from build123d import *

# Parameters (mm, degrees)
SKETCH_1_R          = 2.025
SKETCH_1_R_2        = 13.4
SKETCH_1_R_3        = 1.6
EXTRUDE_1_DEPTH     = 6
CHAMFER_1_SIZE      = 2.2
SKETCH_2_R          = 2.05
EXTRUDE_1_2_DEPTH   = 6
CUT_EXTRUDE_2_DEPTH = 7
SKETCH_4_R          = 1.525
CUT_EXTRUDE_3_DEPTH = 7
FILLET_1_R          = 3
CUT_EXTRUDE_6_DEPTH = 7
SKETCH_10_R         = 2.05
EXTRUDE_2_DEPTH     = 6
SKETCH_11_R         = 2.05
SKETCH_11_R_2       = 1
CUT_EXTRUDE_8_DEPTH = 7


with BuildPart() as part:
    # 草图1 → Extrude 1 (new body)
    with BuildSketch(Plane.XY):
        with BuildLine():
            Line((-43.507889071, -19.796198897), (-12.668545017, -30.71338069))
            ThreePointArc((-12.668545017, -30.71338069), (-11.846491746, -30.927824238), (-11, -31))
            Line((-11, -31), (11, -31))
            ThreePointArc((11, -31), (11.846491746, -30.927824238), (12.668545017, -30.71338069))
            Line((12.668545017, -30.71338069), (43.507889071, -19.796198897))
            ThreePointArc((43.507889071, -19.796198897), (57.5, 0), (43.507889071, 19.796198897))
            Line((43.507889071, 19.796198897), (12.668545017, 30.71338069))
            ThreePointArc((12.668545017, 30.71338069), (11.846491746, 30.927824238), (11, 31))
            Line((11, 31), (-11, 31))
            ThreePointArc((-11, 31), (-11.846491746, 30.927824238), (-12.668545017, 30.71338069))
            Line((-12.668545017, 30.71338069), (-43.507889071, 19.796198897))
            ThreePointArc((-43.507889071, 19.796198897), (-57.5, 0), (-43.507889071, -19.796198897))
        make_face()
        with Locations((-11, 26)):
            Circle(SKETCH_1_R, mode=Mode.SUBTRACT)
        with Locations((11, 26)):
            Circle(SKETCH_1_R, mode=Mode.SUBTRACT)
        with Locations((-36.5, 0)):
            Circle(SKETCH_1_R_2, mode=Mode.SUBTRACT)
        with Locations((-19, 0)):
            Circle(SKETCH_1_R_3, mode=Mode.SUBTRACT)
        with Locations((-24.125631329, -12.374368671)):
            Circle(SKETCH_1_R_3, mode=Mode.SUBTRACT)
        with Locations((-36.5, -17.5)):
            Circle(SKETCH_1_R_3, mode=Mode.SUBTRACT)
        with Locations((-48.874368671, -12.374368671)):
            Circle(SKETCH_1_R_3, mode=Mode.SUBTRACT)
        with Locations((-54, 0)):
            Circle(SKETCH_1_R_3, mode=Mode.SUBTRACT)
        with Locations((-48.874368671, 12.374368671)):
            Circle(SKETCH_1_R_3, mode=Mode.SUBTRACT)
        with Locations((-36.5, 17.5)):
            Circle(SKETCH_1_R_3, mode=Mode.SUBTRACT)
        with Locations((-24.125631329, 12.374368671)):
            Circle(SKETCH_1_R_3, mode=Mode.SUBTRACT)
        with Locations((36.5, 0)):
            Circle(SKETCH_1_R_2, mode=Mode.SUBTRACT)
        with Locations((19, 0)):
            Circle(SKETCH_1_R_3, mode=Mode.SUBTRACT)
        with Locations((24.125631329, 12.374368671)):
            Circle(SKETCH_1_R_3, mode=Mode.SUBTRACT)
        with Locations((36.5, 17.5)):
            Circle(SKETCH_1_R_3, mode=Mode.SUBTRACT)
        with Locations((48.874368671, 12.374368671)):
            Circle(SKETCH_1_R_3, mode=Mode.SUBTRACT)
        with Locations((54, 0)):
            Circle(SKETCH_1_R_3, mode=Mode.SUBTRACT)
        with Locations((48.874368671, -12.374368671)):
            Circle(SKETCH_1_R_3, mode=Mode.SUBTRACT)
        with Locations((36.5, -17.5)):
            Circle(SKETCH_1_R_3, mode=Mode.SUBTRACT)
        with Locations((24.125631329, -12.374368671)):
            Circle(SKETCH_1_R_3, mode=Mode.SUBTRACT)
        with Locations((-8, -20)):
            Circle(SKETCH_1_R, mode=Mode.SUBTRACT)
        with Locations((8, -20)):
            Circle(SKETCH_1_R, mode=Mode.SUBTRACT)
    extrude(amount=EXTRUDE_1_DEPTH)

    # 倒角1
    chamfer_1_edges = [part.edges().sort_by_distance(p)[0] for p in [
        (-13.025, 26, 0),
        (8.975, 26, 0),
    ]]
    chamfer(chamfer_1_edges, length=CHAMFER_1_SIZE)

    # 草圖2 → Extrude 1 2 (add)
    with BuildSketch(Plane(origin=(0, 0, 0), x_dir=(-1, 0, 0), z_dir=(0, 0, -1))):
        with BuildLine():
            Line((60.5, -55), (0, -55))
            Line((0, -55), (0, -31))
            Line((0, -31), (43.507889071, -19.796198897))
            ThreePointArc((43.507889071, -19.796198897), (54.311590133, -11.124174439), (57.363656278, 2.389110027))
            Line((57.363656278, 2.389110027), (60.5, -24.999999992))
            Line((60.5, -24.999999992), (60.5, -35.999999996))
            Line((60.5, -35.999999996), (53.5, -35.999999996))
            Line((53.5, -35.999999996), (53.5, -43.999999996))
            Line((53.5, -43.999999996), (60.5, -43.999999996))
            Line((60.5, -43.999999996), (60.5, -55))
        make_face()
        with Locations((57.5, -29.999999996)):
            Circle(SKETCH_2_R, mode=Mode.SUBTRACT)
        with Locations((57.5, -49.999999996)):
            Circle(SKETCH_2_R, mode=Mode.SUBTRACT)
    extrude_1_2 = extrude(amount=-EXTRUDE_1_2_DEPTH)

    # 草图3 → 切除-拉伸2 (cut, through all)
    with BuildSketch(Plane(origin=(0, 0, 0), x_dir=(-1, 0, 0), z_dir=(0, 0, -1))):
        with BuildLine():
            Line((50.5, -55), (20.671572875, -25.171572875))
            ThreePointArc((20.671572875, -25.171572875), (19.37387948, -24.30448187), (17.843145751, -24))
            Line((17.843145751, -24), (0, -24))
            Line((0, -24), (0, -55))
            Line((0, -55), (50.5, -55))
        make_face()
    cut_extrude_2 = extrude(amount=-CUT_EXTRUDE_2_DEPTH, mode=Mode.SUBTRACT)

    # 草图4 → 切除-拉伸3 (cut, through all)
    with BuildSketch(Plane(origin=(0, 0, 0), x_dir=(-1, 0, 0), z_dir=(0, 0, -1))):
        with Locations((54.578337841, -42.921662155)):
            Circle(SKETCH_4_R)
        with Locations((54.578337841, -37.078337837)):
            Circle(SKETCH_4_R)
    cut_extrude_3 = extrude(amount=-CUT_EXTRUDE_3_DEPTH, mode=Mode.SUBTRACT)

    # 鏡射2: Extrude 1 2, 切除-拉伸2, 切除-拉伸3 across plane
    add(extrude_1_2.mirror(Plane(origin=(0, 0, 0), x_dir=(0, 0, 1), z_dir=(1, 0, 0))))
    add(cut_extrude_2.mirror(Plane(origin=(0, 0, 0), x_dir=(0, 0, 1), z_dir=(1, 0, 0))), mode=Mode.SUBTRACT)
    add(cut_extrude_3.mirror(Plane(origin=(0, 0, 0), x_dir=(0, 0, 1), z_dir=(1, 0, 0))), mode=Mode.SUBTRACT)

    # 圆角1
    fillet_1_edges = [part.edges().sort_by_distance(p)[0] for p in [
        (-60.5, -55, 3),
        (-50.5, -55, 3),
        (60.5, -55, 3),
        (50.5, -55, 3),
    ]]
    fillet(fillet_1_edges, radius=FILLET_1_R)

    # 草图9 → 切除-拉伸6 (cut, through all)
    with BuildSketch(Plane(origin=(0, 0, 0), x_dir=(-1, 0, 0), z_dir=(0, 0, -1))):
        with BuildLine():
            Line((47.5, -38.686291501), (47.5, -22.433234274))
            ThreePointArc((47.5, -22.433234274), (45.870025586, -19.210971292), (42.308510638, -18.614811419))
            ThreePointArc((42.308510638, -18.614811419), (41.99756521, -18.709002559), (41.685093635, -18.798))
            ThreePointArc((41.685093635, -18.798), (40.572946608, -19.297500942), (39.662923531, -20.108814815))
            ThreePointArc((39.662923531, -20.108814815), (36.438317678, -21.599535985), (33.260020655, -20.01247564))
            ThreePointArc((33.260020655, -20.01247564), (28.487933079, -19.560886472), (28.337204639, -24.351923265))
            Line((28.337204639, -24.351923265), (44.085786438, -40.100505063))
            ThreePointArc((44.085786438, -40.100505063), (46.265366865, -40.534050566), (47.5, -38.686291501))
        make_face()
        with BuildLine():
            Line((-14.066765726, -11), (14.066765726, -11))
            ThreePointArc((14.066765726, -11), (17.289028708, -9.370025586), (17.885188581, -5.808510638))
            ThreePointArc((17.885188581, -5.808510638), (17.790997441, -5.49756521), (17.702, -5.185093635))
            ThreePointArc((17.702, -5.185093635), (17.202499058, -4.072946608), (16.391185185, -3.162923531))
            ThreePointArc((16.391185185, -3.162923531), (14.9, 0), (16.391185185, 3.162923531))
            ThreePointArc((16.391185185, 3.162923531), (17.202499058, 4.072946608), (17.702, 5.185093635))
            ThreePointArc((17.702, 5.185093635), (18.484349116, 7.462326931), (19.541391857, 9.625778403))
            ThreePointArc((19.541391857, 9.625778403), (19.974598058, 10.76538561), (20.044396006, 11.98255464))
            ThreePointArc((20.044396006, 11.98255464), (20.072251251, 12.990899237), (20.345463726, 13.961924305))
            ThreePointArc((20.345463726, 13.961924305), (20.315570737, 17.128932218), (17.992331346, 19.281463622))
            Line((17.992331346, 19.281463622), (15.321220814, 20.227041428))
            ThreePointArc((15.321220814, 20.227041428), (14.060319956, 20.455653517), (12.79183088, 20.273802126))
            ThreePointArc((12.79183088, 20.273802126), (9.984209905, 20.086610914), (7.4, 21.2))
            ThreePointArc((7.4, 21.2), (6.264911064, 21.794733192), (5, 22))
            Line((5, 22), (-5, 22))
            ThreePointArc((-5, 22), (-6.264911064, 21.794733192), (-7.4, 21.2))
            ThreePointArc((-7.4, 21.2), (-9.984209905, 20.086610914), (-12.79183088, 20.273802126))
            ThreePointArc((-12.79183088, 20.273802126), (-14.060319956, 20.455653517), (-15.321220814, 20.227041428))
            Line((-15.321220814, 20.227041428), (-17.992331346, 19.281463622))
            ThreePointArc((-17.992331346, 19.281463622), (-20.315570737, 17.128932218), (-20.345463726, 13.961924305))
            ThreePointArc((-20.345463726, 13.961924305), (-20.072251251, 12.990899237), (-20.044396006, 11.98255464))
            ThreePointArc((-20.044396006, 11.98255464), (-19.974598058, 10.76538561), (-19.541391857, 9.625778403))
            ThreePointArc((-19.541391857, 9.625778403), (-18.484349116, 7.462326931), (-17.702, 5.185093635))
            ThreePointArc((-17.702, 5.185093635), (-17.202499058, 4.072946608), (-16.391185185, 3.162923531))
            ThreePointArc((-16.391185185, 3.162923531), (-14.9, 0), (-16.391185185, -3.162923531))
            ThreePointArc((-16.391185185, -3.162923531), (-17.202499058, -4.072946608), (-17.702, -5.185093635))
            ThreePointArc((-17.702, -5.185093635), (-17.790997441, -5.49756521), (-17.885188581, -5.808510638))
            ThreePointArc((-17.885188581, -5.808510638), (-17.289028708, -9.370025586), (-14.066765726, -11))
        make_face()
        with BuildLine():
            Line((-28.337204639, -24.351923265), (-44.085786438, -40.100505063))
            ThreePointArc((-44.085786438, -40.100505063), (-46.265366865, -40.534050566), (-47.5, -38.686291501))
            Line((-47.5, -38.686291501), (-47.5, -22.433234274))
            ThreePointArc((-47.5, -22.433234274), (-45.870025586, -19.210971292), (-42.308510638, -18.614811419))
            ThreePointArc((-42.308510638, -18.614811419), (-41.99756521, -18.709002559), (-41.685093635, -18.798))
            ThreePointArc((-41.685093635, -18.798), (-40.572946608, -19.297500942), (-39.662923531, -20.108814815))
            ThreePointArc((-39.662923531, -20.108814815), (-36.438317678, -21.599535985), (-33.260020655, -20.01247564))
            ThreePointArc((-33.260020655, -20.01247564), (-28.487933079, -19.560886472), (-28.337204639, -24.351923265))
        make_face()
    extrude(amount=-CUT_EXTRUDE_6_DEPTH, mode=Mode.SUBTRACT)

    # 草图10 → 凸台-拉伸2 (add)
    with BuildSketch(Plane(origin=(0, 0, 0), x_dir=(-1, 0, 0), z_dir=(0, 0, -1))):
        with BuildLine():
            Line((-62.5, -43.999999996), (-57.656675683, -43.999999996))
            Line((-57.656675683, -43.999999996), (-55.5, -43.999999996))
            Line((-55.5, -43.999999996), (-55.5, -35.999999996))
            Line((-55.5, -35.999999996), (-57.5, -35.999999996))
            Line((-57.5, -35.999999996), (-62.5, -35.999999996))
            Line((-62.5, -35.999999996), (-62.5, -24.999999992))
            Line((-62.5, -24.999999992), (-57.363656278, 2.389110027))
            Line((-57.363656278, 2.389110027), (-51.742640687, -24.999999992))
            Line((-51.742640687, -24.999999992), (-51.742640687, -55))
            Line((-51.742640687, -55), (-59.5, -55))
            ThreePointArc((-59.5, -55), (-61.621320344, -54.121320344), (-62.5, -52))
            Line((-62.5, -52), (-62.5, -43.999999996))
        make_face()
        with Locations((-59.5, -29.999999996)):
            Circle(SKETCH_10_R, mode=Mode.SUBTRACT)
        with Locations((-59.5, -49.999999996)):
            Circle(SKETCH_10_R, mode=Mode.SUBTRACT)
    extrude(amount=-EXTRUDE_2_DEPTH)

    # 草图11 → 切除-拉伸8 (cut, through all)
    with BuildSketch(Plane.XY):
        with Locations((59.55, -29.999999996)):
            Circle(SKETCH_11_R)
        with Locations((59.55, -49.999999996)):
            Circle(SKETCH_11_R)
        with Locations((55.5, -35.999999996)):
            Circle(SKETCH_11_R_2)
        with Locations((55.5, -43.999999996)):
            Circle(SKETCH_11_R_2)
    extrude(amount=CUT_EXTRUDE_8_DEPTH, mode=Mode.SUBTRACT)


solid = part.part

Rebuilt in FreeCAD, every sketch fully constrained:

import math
import FreeCAD as App
import Part
import Sketcher
from FreeCAD import Vector
Q = App.Units.Quantity


def edges_at(feature, points):
    """Names of the edges that pass closest to the given points."""
    edges = feature.Shape.Edges
    near = lambda p: min(range(len(edges)), key=lambda i: edges[i].distToShape(Part.Vertex(*p))[0])
    return sorted({f"Edge{near(p) + 1}" for p in points})

doc = App.newDocument("Part")
body = doc.addObject("PartDesign::Body", "Body")

# Sketch on XY plane
sketch1 = body.newObject("Sketcher::SketchObject", "Sketch")
sketch1.AttachmentSupport = (doc.getObject("XY_Plane"), [""])
sketch1.MapMode = "FlatFace"
sketch1.addGeometry([
    Part.LineSegment(Vector(-43.507889, -19.796199, 0), Vector(-12.668545, -30.713381, 0)),  # 0
    Part.ArcOfCircle(Part.Circle(Vector(-11, -26, 0), Vector(0, 0, 1), 5), math.radians(-109.494052), math.radians(-90)),  # 1
    Part.LineSegment(Vector(-11, -31, 0), Vector(11, -31, 0)),  # 2
    Part.ArcOfCircle(Part.Circle(Vector(11, -26, 0), Vector(0, 0, 1), 5), math.radians(-90), math.radians(-70.505948)),  # 3
    Part.LineSegment(Vector(12.668545, -30.713381, 0), Vector(43.507889, -19.796199, 0)),  # 4
    Part.ArcOfCircle(Part.Circle(Vector(36.5, 0, 0), Vector(0, 0, 1), 21), math.radians(-70.505948), math.radians(70.505948)),  # 5
    Part.LineSegment(Vector(43.507889, 19.796199, 0), Vector(12.668545, 30.713381, 0)),  # 6
    Part.ArcOfCircle(Part.Circle(Vector(11, 26, 0), Vector(0, 0, 1), 5), math.radians(70.505948), math.radians(90)),  # 7
    Part.LineSegment(Vector(11, 31, 0), Vector(-11, 31, 0)),  # 8
    Part.ArcOfCircle(Part.Circle(Vector(-11, 26, 0), Vector(0, 0, 1), 5), math.radians(90), math.radians(109.494052)),  # 9
    Part.LineSegment(Vector(-12.668545, 30.713381, 0), Vector(-43.507889, 19.796199, 0)),  # 10
    Part.ArcOfCircle(Part.Circle(Vector(-36.5, 0, 0), Vector(0, 0, 1), 21), math.radians(109.494052), math.radians(250.505948)),  # 11
    Part.Circle(Vector(-36.5, -17.5, 0), Vector(0, 0, 1), 1.6),  # 12
    Part.Circle(Vector(-48.874369, -12.374369, 0), Vector(0, 0, 1), 1.6),  # 13
    Part.Circle(Vector(-8, -20, 0), Vector(0, 0, 1), 2.025),  # 14
    Part.Circle(Vector(-24.125631, -12.374369, 0), Vector(0, 0, 1), 1.6),  # 15
    Part.Circle(Vector(-54, 0, 0), Vector(0, 0, 1), 1.6),  # 16
    Part.Circle(Vector(-36.5, 0, 0), Vector(0, 0, 1), 13.4),  # 17
    Part.Circle(Vector(-19, 0, 0), Vector(0, 0, 1), 1.6),  # 18
    Part.Circle(Vector(8, -20, 0), Vector(0, 0, 1), 2.025),  # 19
    Part.Circle(Vector(24.125631, -12.374369, 0), Vector(0, 0, 1), 1.6),  # 20
    Part.Circle(Vector(36.5, -17.5, 0), Vector(0, 0, 1), 1.6),  # 21
    Part.Circle(Vector(48.874369, -12.374369, 0), Vector(0, 0, 1), 1.6),  # 22
    Part.Circle(Vector(19, 0, 0), Vector(0, 0, 1), 1.6),  # 23
    Part.Circle(Vector(36.5, 0, 0), Vector(0, 0, 1), 13.4),  # 24
    Part.Circle(Vector(54, 0, 0), Vector(0, 0, 1), 1.6),  # 25
    Part.Circle(Vector(-48.874369, 12.374369, 0), Vector(0, 0, 1), 1.6),  # 26
    Part.Circle(Vector(-24.125631, 12.374369, 0), Vector(0, 0, 1), 1.6),  # 27
    Part.Circle(Vector(-36.5, 17.5, 0), Vector(0, 0, 1), 1.6),  # 28
    Part.Circle(Vector(-11, 26, 0), Vector(0, 0, 1), 2.025),  # 29
    Part.Circle(Vector(24.125631, 12.374369, 0), Vector(0, 0, 1), 1.6),  # 30
    Part.Circle(Vector(48.874369, 12.374369, 0), Vector(0, 0, 1), 1.6),  # 31
    Part.Circle(Vector(11, 26, 0), Vector(0, 0, 1), 2.025),  # 32
    Part.Circle(Vector(36.5, 17.5, 0), Vector(0, 0, 1), 1.6),  # 33
], False)
sketch1.addConstraint([
    Sketcher.Constraint("Tangent", 0, 2, 1, 1),
    Sketcher.Constraint("Tangent", 1, 2, 2, 1),
    Sketcher.Constraint("Tangent", 2, 2, 3, 1),
    Sketcher.Constraint("Tangent", 3, 2, 4, 1),
    Sketcher.Constraint("Tangent", 4, 2, 5, 1),
    Sketcher.Constraint("Tangent", 5, 2, 6, 1),
    Sketcher.Constraint("Tangent", 6, 2, 7, 1),
    Sketcher.Constraint("Tangent", 7, 2, 8, 1),
    Sketcher.Constraint("Tangent", 8, 2, 9, 1),
    Sketcher.Constraint("Tangent", 9, 2, 10, 1),
    Sketcher.Constraint("Tangent", 10, 2, 11, 1),
    Sketcher.Constraint("Tangent", 11, 2, 0, 1),
    Sketcher.Constraint("Horizontal", 2),
    Sketcher.Constraint("Horizontal", 8),
    Sketcher.Constraint("Coincident", 17, 3, 11, 3),
    Sketcher.Constraint("Coincident", 24, 3, 5, 3),
    Sketcher.Constraint("Coincident", 29, 3, 9, 3),
    Sketcher.Constraint("Coincident", 32, 3, 7, 3),
    Sketcher.Constraint("Equal", 1, 3),
    Sketcher.Constraint("Equal", 3, 7),
    Sketcher.Constraint("Equal", 7, 9),
    Sketcher.Constraint("Equal", 5, 11),
    Sketcher.Constraint("Equal", 12, 13),
    Sketcher.Constraint("Equal", 13, 15),
    Sketcher.Constraint("Equal", 15, 16),
    Sketcher.Constraint("Equal", 16, 18),
    Sketcher.Constraint("Equal", 14, 19),
    Sketcher.Constraint("Equal", 18, 20),
    Sketcher.Constraint("Equal", 20, 21),
    Sketcher.Constraint("Equal", 21, 22),
    Sketcher.Constraint("Equal", 22, 23),
    Sketcher.Constraint("Equal", 17, 24),
    Sketcher.Constraint("Equal", 23, 25),
    Sketcher.Constraint("Equal", 25, 26),
    Sketcher.Constraint("Equal", 26, 27),
    Sketcher.Constraint("Equal", 27, 28),
    Sketcher.Constraint("Equal", 19, 29),
    Sketcher.Constraint("Equal", 28, 30),
    Sketcher.Constraint("Equal", 30, 31),
    Sketcher.Constraint("Equal", 29, 32),
    Sketcher.Constraint("Equal", 31, 33),
    Sketcher.Constraint("Symmetric", 1, 3, 7, 3, -1, 1),
    Sketcher.Constraint("Symmetric", 5, 3, 11, 3, -1, 1),
    Sketcher.Constraint("Symmetric", 18, 3, 23, 3, -1, 1),
    Sketcher.Constraint("Symmetric", 16, 3, 25, 3, -1, 1),
    Sketcher.Constraint("Symmetric", 22, 3, 26, 3, -1, 1),
    Sketcher.Constraint("Symmetric", 20, 3, 27, 3, -1, 1),
    Sketcher.Constraint("Symmetric", 21, 3, 28, 3, -1, 1),
    Sketcher.Constraint("Symmetric", 15, 3, 30, 3, -1, 1),
    Sketcher.Constraint("Symmetric", 13, 3, 31, 3, -1, 1),
    Sketcher.Constraint("Symmetric", 12, 3, 33, 3, -1, 1),
    Sketcher.Constraint("Symmetric", 14, 3, 19, 3, -2),
    Sketcher.Constraint("Symmetric", 15, 3, 20, 3, -2),
    Sketcher.Constraint("Symmetric", 12, 3, 21, 3, -2),
    Sketcher.Constraint("Symmetric", 13, 3, 22, 3, -2),
    Sketcher.Constraint("Symmetric", 0, 2, 3, 2, -2),
    Sketcher.Constraint("PointOnObject", 16, 3, -1),
    Sketcher.Constraint("PointOnObject", 18, 3, -1),
    Sketcher.Constraint("Parallel", 4, 10),
    Sketcher.Constraint("Horizontal", 13, 3, 15, 3),
    Sketcher.Constraint("Vertical", 11, 3, 12, 3),
    Sketcher.Constraint("Radius", 1, 5.0),
    Sketcher.Constraint("Radius", 5, 21.0),
    Sketcher.Constraint("Diameter", 12, 3.2),
    Sketcher.Constraint("Diameter", 17, 26.8),
    Sketcher.Constraint("Diameter", 14, 4.05),
    Sketcher.Constraint("DistanceX", 2, 1, 2, 2, 22.0),
    Sketcher.Constraint("DistanceY", 1, 3, -1, 1, 26.0),
    Sketcher.Constraint("DistanceX", 14, 3, -1, 1, 8.0),
    Sketcher.Constraint("DistanceY", 14, 3, -1, 1, 20.0),
    Sketcher.Constraint("DistanceX", 16, 3, -1, 1, 54.0),
    Sketcher.Constraint("DistanceX", 18, 3, -1, 1, 19.0),
    Sketcher.Constraint("DistanceX", 11, 3, 5, 3, 73.0),
    Sketcher.Constraint("DistanceY", 12, 3, -1, 1, 17.5),
    Sketcher.Constraint("DistanceX", 13, 3, -1, 1, 48.874369),
    Sketcher.Constraint("DistanceY", 13, 3, -1, 1, 12.374369),
    Sketcher.Constraint("DistanceX", 15, 3, -1, 1, 24.125631),
])
pad1 = body.newObject("PartDesign::Pad", "Pad")
pad1.Profile = sketch1
pad1.Length = 6
doc.recompute()

chamfer = body.newObject("PartDesign::Chamfer", "Chamfer")
chamfer.Base = (pad1, edges_at(pad1, [(-13.025, 26, 0), (8.975, 26, 0)]))
chamfer.Size = 2.2

# Sketch on XY plane
sketch2 = body.newObject("Sketcher::SketchObject", "Sketch001")
sketch2.AttachmentSupport = (doc.getObject("XY_Plane"), [""])
sketch2.MapMode = "FlatFace"
sketch2.addGeometry([
    Part.LineSegment(Vector(0, -55, 0), Vector(-60.5, -55, 0)),  # 0
    Part.LineSegment(Vector(-60.5, -55, 0), Vector(-60.5, -44, 0)),  # 1
    Part.LineSegment(Vector(-60.5, -44, 0), Vector(-53.5, -44, 0)),  # 2
    Part.LineSegment(Vector(-53.5, -44, 0), Vector(-53.5, -36, 0)),  # 3
    Part.LineSegment(Vector(-53.5, -36, 0), Vector(-60.5, -36, 0)),  # 4
    Part.LineSegment(Vector(-60.5, -36, 0), Vector(-60.5, -25, 0)),  # 5
    Part.LineSegment(Vector(-60.5, -25, 0), Vector(-57.363656, 2.38911, 0)),  # 6
    Part.ArcOfCircle(Part.Circle(Vector(-36.5, 0, 0), Vector(0, 0, 1), 21), math.radians(173.467479), math.radians(250.505948)),  # 7
    Part.LineSegment(Vector(-43.507889, -19.796199, 0), Vector(0, -31, 0)),  # 8
    Part.LineSegment(Vector(0, -31, 0), Vector(0, -55, 0)),  # 9
    Part.Circle(Vector(-57.5, -50, 0), Vector(0, 0, 1), 2.05),  # 10
    Part.Circle(Vector(-57.5, -30, 0), Vector(0, 0, 1), 2.05),  # 11
], False)
sketch2.addConstraint([
    Sketcher.Constraint("Coincident", 0, 2, 1, 1),
    Sketcher.Constraint("Coincident", 1, 2, 2, 1),
    Sketcher.Constraint("Coincident", 2, 2, 3, 1),
    Sketcher.Constraint("Coincident", 3, 2, 4, 1),
    Sketcher.Constraint("Coincident", 4, 2, 5, 1),
    Sketcher.Constraint("Coincident", 5, 2, 6, 1),
    Sketcher.Constraint("Tangent", 6, 2, 7, 1),
    Sketcher.Constraint("Coincident", 7, 2, 8, 1),
    Sketcher.Constraint("Coincident", 8, 2, 9, 1),
    Sketcher.Constraint("Coincident", 9, 2, 0, 1),
    Sketcher.Constraint("Horizontal", 0),
    Sketcher.Constraint("Vertical", 1),
    Sketcher.Constraint("Horizontal", 2),
    Sketcher.Constraint("Vertical", 3),
    Sketcher.Constraint("Horizontal", 4),
    Sketcher.Constraint("Vertical", 5),
    Sketcher.Constraint("Vertical", 9),
    Sketcher.Constraint("Equal", 10, 11),
    Sketcher.Constraint("PointOnObject", 7, 3, -1),
    Sketcher.Constraint("PointOnObject", 8, 2, -2),
    Sketcher.Constraint("Vertical", 10, 3, 11, 3),
    Sketcher.Constraint("Vertical", 1, 2, 4, 2),
    Sketcher.Constraint("Equal", 1, 5),
    Sketcher.Constraint("Radius", 7, 21.0),
    Sketcher.Constraint("Diameter", 10, 4.1),
    Sketcher.Constraint("DistanceX", 2, 1, 2, 2, 7.0),
    Sketcher.Constraint("DistanceY", 1, 1, 1, 2, 11.0),
    Sketcher.Constraint("DistanceY", 3, 1, 3, 2, 8.0),
    Sketcher.Constraint("DistanceY", 9, 2, 9, 1, 24.0),
    Sketcher.Constraint("DistanceX", 0, 2, 0, 1, 60.5),
    Sketcher.Constraint("DistanceY", 10, 3, -1, 1, 50.0),
    Sketcher.Constraint("DistanceY", 11, 3, -1, 1, 30.0),
    Sketcher.Constraint("DistanceY", 0, 2, -1, 1, 55.0),
    Sketcher.Constraint("DistanceX", 10, 3, 7, 3, 21.0),
    Sketcher.Constraint("DistanceX", 0, 2, 10, 3, 3.0),
    Sketcher.Constraint("DistanceY", 7, 2, -1, 1, 19.796199),
])
pad2 = body.newObject("PartDesign::Pad", "Pad001")
pad2.Profile = sketch2
pad2.Length = 6

# Sketch on XY plane
sketch3 = body.newObject("Sketcher::SketchObject", "Sketch002")
sketch3.AttachmentSupport = (doc.getObject("XY_Plane"), [""])
sketch3.MapMode = "FlatFace"
sketch3.addGeometry([
    Part.LineSegment(Vector(-50.5, -55, 0), Vector(-20.671573, -25.171573, 0)),  # 0
    Part.ArcOfCircle(Part.Circle(Vector(-17.843146, -28, 0), Vector(0, 0, 1), 4), math.radians(90), math.radians(135)),  # 1
    Part.LineSegment(Vector(-17.843146, -24, 0), Vector(0, -24, 0)),  # 2
    Part.LineSegment(Vector(0, -24, 0), Vector(0, -55, 0)),  # 3
    Part.LineSegment(Vector(0, -55, 0), Vector(-50.5, -55, 0)),  # 4
], False)
sketch3.addConstraint([
    Sketcher.Constraint("Tangent", 0, 2, 1, 2),
    Sketcher.Constraint("Tangent", 1, 1, 2, 1),
    Sketcher.Constraint("Coincident", 2, 2, 3, 1),
    Sketcher.Constraint("Coincident", 3, 2, 4, 1),
    Sketcher.Constraint("Coincident", 4, 2, 0, 1),
    Sketcher.Constraint("Horizontal", 2),
    Sketcher.Constraint("Vertical", 3),
    Sketcher.Constraint("Horizontal", 4),
    Sketcher.Constraint("PointOnObject", 2, 2, -2),
    Sketcher.Constraint("Radius", 1, 4.0),
    Sketcher.Constraint("DistanceY", 3, 2, 3, 1, 31.0),
    Sketcher.Constraint("Angle", 0, Q("45 deg")),
    Sketcher.Constraint("DistanceX", 4, 2, 4, 1, 50.5),
    Sketcher.Constraint("DistanceY", 1, 3, -1, 1, 28.0),
])
pocket1 = body.newObject("PartDesign::Pocket", "Pocket")
pocket1.Profile = sketch3
pocket1.Type = "ThroughAll"
pocket1.Reversed = True

# Sketch on XY plane
sketch4 = body.newObject("Sketcher::SketchObject", "Sketch003")
sketch4.AttachmentSupport = (doc.getObject("XY_Plane"), [""])
sketch4.MapMode = "FlatFace"
sketch4.addGeometry([
    Part.Circle(Vector(-54.578338, -42.921662, 0), Vector(0, 0, 1), 1.525),
    Part.Circle(Vector(-54.578338, -37.078338, 0), Vector(0, 0, 1), 1.525),
], False)
sketch4.addConstraint([
    Sketcher.Constraint("Equal", 0, 1),
    Sketcher.Constraint("Vertical", 0, 3, 1, 3),
    Sketcher.Constraint("Diameter", 0, 3.05),
    Sketcher.Constraint("DistanceX", 0, 3, -1, 1, 54.578338),
    Sketcher.Constraint("DistanceY", 0, 3, -1, 1, 42.921662),
    Sketcher.Constraint("DistanceY", 1, 3, -1, 1, 37.078338),
])
pocket2 = body.newObject("PartDesign::Pocket", "Pocket001")
pocket2.Profile = sketch4
pocket2.Type = "ThroughAll"
pocket2.Reversed = True
doc.recompute()

mirrored = body.newObject("PartDesign::Mirrored", "Mirrored")
mirrored.Originals = [pad2, pocket1, pocket2]
mirrored.MirrorPlane = (doc.getObject("YZ_Plane"), [""])
body.Tip = mirrored
doc.recompute()

fillet = body.newObject("PartDesign::Fillet", "Fillet")
fillet.Base = (mirrored, edges_at(mirrored, [
    (-60.5, -55, 3),
    (-50.5, -55, 3),
    (60.5, -55, 3),
    (50.5, -55, 3),
]))
fillet.Radius = 3

# Sketch on XY plane
sketch5 = body.newObject("Sketcher::SketchObject", "Sketch004")
sketch5.AttachmentSupport = (doc.getObject("XY_Plane"), [""])
sketch5.MapMode = "FlatFace"
sketch5.addGeometry([
    Part.LineSegment(Vector(-47.5, -38.686292, 0), Vector(-47.5, -22.433234, 0)),  # 0
    Part.ArcOfCircle(Part.Circle(Vector(-43.5, -22.433234, 0), Vector(0, 0, 1), 4), math.radians(72.670144), math.radians(180)),  # 1
    Part.ArcOfCircle(Part.Circle(Vector(-36.5, 0.000002, 0), Vector(0, 0, 1), 19.500002), math.radians(-107.329856), math.radians(-105.420571)),  # 2
    Part.ArcOfCircle(Part.Circle(Vector(-42.748703, -22.654, 0), Vector(0, 0, 1), 4), math.radians(39.516195), math.radians(74.579429)),  # 3
    Part.ArcOfCircle(Part.Circle(Vector(-36.5, -17.5, 0), Vector(0, 0, 1), 4.1), math.radians(-140.483805), math.radians(-37.792161)),  # 4
    Part.ArcOfCircle(Part.Circle(Vector(-30.661956, -22.027172, 0), Vector(0, 0, 1), 3.287695), math.radians(-45), math.radians(142.207839)),  # 5
    Part.LineSegment(Vector(-28.337205, -24.351923, 0), Vector(-44.085786, -40.100505, 0)),  # 6
    Part.ArcOfCircle(Part.Circle(Vector(-45.5, -38.686292, 0), Vector(0, 0, 1), 2), math.radians(180), math.radians(315)),  # 7
    Part.LineSegment(Vector(14.066766, -11, 0), Vector(-14.066766, -11, 0)),  # 8
    Part.ArcOfCircle(Part.Circle(Vector(-14.066766, -7, 0), Vector(0, 0, 1), 4), math.radians(162.670144), math.radians(270)),  # 9
    Part.ArcOfCircle(Part.Circle(Vector(-36.500002, 0, 0), Vector(0, 0, 1), 19.500002), math.radians(-17.329856), math.radians(-15.420571)),  # 10
    Part.ArcOfCircle(Part.Circle(Vector(-13.846, -6.248703, 0), Vector(0, 0, 1), 4), math.radians(129.516195), math.radians(164.579429)),  # 11
    Part.ArcOfCircle(Part.Circle(Vector(-19, 0, 0), Vector(0, 0, 1), 4.1), math.radians(-50.483805), math.radians(50.483805)),  # 12
    Part.ArcOfCircle(Part.Circle(Vector(-13.846, 6.248703, 0), Vector(0, 0, 1), 4), math.radians(-164.579429), math.radians(-129.516195)),  # 13
    Part.ArcOfCircle(Part.Circle(Vector(-36.5, 0, 0), Vector(0, 0, 1), 19.5), math.radians(15.420571), math.radians(29.579429)),  # 14
    Part.ArcOfCircle(Part.Circle(Vector(-16.062703, 11.600297, 0), Vector(0, 0, 1), 4), math.radians(174.516195), math.radians(209.579429)),  # 15
    Part.ArcOfCircle(Part.Circle(Vector(-24.125631, 12.374369, 0), Vector(0, 0, 1), 4.1), math.radians(-5.483805), math.radians(22.780927)),  # 16
    Part.ArcOfCircle(Part.Circle(Vector(-16.657495, 15.510759, 0), Vector(0, 0, 1), 4), math.radians(109.494052), math.radians(202.780927)),  # 17
    Part.LineSegment(Vector(-17.992331, 19.281464, 0), Vector(-15.321221, 20.227041, 0)),  # 18
    Part.ArcOfCircle(Part.Circle(Vector(-13.986385, 16.456337, 0), Vector(0, 0, 1), 4), math.radians(72.624155), math.radians(109.494052)),  # 19
    Part.ArcOfCircle(Part.Circle(Vector(-11, 26, 0), Vector(0, 0, 1), 6), math.radians(-107.375845), math.radians(-53.130102)),  # 20
    Part.ArcOfCircle(Part.Circle(Vector(-5, 18, 0), Vector(0, 0, 1), 4), math.radians(90), math.radians(126.869898)),  # 21
    Part.LineSegment(Vector(-5, 22, 0), Vector(5, 22, 0)),  # 22
    Part.ArcOfCircle(Part.Circle(Vector(5, 18, 0), Vector(0, 0, 1), 4), math.radians(53.130102), math.radians(90)),  # 23
    Part.ArcOfCircle(Part.Circle(Vector(11, 26, 0), Vector(0, 0, 1), 6), math.radians(-126.869898), math.radians(-72.624155)),  # 24
    Part.ArcOfCircle(Part.Circle(Vector(13.986385, 16.456337, 0), Vector(0, 0, 1), 4), math.radians(70.505948), math.radians(107.375845)),  # 25
    Part.LineSegment(Vector(15.321221, 20.227041, 0), Vector(17.992331, 19.281464, 0)),  # 26
    Part.ArcOfCircle(Part.Circle(Vector(16.657495, 15.510759, 0), Vector(0, 0, 1), 4), math.radians(-22.780927), math.radians(70.505948)),  # 27
    Part.ArcOfCircle(Part.Circle(Vector(24.125631, 12.374369, 0), Vector(0, 0, 1), 4.1), math.radians(157.219073), math.radians(185.483805)),  # 28
    Part.ArcOfCircle(Part.Circle(Vector(16.062703, 11.600297, 0), Vector(0, 0, 1), 4), math.radians(-29.579429), math.radians(5.483805)),  # 29
    Part.ArcOfCircle(Part.Circle(Vector(36.5, 0, 0), Vector(0, 0, 1), 19.5), math.radians(150.420571), math.radians(164.579429)),  # 30
    Part.ArcOfCircle(Part.Circle(Vector(13.846, 6.248703, 0), Vector(0, 0, 1), 4), math.radians(-50.483805), math.radians(-15.420571)),  # 31
    Part.ArcOfCircle(Part.Circle(Vector(19, 0, 0), Vector(0, 0, 1), 4.1), math.radians(129.516195), math.radians(230.483805)),  # 32
    Part.ArcOfCircle(Part.Circle(Vector(13.846, -6.248703, 0), Vector(0, 0, 1), 4), math.radians(15.420571), math.radians(50.483805)),  # 33
    Part.ArcOfCircle(Part.Circle(Vector(36.500002, 0, 0), Vector(0, 0, 1), 19.500002), math.radians(-164.579429), math.radians(-162.670144)),  # 34
    Part.ArcOfCircle(Part.Circle(Vector(14.066766, -7, 0), Vector(0, 0, 1), 4), math.radians(-90), math.radians(17.329856)),  # 35
    Part.LineSegment(Vector(44.085786, -40.100505, 0), Vector(28.337205, -24.351923, 0)),  # 36
    Part.ArcOfCircle(Part.Circle(Vector(30.661956, -22.027172, 0), Vector(0, 0, 1), 3.287695), math.radians(37.792161), math.radians(225)),  # 37
    Part.ArcOfCircle(Part.Circle(Vector(36.5, -17.5, 0), Vector(0, 0, 1), 4.1), math.radians(-142.207839), math.radians(-39.516195)),  # 38
    Part.ArcOfCircle(Part.Circle(Vector(42.748703, -22.654, 0), Vector(0, 0, 1), 4), math.radians(105.420571), math.radians(140.483805)),  # 39
    Part.ArcOfCircle(Part.Circle(Vector(36.5, 0.000002, 0), Vector(0, 0, 1), 19.500002), math.radians(-74.579429), math.radians(-72.670144)),  # 40
    Part.ArcOfCircle(Part.Circle(Vector(43.5, -22.433234, 0), Vector(0, 0, 1), 4), math.radians(0), math.radians(107.329856)),  # 41
    Part.LineSegment(Vector(47.5, -22.433234, 0), Vector(47.5, -38.686292, 0)),  # 42
    Part.ArcOfCircle(Part.Circle(Vector(45.5, -38.686292, 0), Vector(0, 0, 1), 2), math.radians(-135), math.radians(0)),  # 43
], False)
sketch5.addConstraint([
    Sketcher.Constraint("Tangent", 0, 2, 1, 2),
    Sketcher.Constraint("Tangent", 1, 1, 2, 1),
    Sketcher.Constraint("Tangent", 2, 2, 3, 2),
    Sketcher.Constraint("Tangent", 3, 1, 4, 1),
    Sketcher.Constraint("Tangent", 4, 2, 5, 2),
    Sketcher.Constraint("Tangent", 5, 1, 6, 1),
    Sketcher.Constraint("Tangent", 6, 2, 7, 2),
    Sketcher.Constraint("Tangent", 7, 1, 0, 1),
    Sketcher.Constraint("Tangent", 8, 2, 9, 2),
    Sketcher.Constraint("Tangent", 9, 1, 10, 1),
    Sketcher.Constraint("Tangent", 10, 2, 11, 2),
    Sketcher.Constraint("Tangent", 11, 1, 12, 1),
    Sketcher.Constraint("Tangent", 12, 2, 13, 2),
    Sketcher.Constraint("Tangent", 13, 1, 14, 1),
    Sketcher.Constraint("Tangent", 14, 2, 15, 2),
    Sketcher.Constraint("Tangent", 15, 1, 16, 1),
    Sketcher.Constraint("Tangent", 16, 2, 17, 2),
    Sketcher.Constraint("Tangent", 17, 1, 18, 1),
    Sketcher.Constraint("Tangent", 18, 2, 19, 2),
    Sketcher.Constraint("Tangent", 19, 1, 20, 1),
    Sketcher.Constraint("Tangent", 20, 2, 21, 2),
    Sketcher.Constraint("Tangent", 21, 1, 22, 1),
    Sketcher.Constraint("Tangent", 22, 2, 23, 2),
    Sketcher.Constraint("Tangent", 23, 1, 24, 1),
    Sketcher.Constraint("Tangent", 24, 2, 25, 2),
    Sketcher.Constraint("Tangent", 25, 1, 26, 1),
    Sketcher.Constraint("Tangent", 26, 2, 27, 2),
    Sketcher.Constraint("Tangent", 27, 1, 28, 1),
    Sketcher.Constraint("Tangent", 28, 2, 29, 2),
    Sketcher.Constraint("Tangent", 29, 1, 30, 1),
    Sketcher.Constraint("Tangent", 30, 2, 31, 2),
    Sketcher.Constraint("Tangent", 31, 1, 32, 1),
    Sketcher.Constraint("Tangent", 32, 2, 33, 2),
    Sketcher.Constraint("Tangent", 33, 1, 34, 1),
    Sketcher.Constraint("Tangent", 34, 2, 35, 2),
    Sketcher.Constraint("Tangent", 35, 1, 8, 1),
    Sketcher.Constraint("Tangent", 36, 2, 37, 2),
    Sketcher.Constraint("Tangent", 37, 1, 38, 1),
    Sketcher.Constraint("Tangent", 38, 2, 39, 2),
    Sketcher.Constraint("Tangent", 39, 1, 40, 1),
    Sketcher.Constraint("Tangent", 40, 2, 41, 2),
    Sketcher.Constraint("Tangent", 41, 1, 42, 1),
    Sketcher.Constraint("Tangent", 42, 2, 43, 2),
    Sketcher.Constraint("Tangent", 43, 1, 36, 1),
    Sketcher.Constraint("Vertical", 0),
    Sketcher.Constraint("Horizontal", 8),
    Sketcher.Constraint("Horizontal", 22),
    Sketcher.Constraint("Vertical", 42),
    Sketcher.Constraint("Coincident", 10, 3, 2, 3),
    Sketcher.Constraint("Coincident", 14, 3, 2, 3),
    Sketcher.Constraint("Coincident", 34, 3, 30, 3),
    Sketcher.Constraint("Coincident", 40, 3, 30, 3),
    Sketcher.Constraint("Equal", 1, 3),
    Sketcher.Constraint("Equal", 3, 9),
    Sketcher.Constraint("Equal", 2, 10),
    Sketcher.Constraint("Equal", 9, 11),
    Sketcher.Constraint("Equal", 4, 12),
    Sketcher.Constraint("Equal", 11, 13),
    Sketcher.Constraint("Equal", 10, 14),
    Sketcher.Constraint("Equal", 13, 15),
    Sketcher.Constraint("Equal", 12, 16),
    Sketcher.Constraint("Equal", 15, 17),
    Sketcher.Constraint("Equal", 17, 19),
    Sketcher.Constraint("Equal", 19, 21),
    Sketcher.Constraint("Equal", 21, 23),
    Sketcher.Constraint("Equal", 20, 24),
    Sketcher.Constraint("Equal", 23, 25),
    Sketcher.Constraint("Equal", 25, 27),
    Sketcher.Constraint("Equal", 16, 28),
    Sketcher.Constraint("Equal", 27, 29),
    Sketcher.Constraint("Equal", 14, 30),
    Sketcher.Constraint("Equal", 29, 31),
    Sketcher.Constraint("Equal", 28, 32),
    Sketcher.Constraint("Equal", 31, 33),
    Sketcher.Constraint("Equal", 30, 34),
    Sketcher.Constraint("Equal", 33, 35),
    Sketcher.Constraint("Equal", 5, 37),
    Sketcher.Constraint("Equal", 32, 38),
    Sketcher.Constraint("Equal", 35, 39),
    Sketcher.Constraint("Equal", 34, 40),
    Sketcher.Constraint("Equal", 39, 41),
    Sketcher.Constraint("Equal", 7, 43),
    Sketcher.Constraint("Symmetric", 2, 3, 30, 3, -1, 1),
    Sketcher.Constraint("Symmetric", 12, 3, 32, 3, -1, 1),
    Sketcher.Constraint("Symmetric", 20, 3, 24, 3, -2),
    Sketcher.Constraint("Symmetric", 17, 3, 27, 3, -2),
    Sketcher.Constraint("Symmetric", 15, 3, 29, 3, -2),
    Sketcher.Constraint("Symmetric", 5, 3, 37, 3, -2),
    Sketcher.Constraint("Symmetric", 7, 3, 43, 3, -2),
    Sketcher.Constraint("PointOnObject", 12, 3, -1),
    Sketcher.Constraint("Perpendicular", 6, 36),
    Sketcher.Constraint("Horizontal", 19, 3, 25, 3),
    Sketcher.Constraint("Horizontal", 4, 3, 38, 3),
    Sketcher.Constraint("Vertical", 2, 3, 4, 3),
    Sketcher.Constraint("Radius", 1, 4.0),
    Sketcher.Constraint("Radius", 7, 2.0),
    Sketcher.Constraint("Radius", 20, 6.0),
    Sketcher.Constraint("Radius", 2, 19.500002),
    Sketcher.Constraint("Radius", 4, 4.1),
    Sketcher.Constraint("DistanceX", 22, 1, 22, 2, 10.0),
    Sketcher.Constraint("DistanceY", 9, 3, -1, 1, 7.0),
    Sketcher.Constraint("DistanceX", 12, 3, -1, 1, 19.0),
    Sketcher.Constraint("DistanceX", 20, 3, -1, 1, 11.0),
    Sketcher.Constraint("DistanceY", -1, 1, 20, 3, 26.0),
    Sketcher.Constraint("DistanceX", 1, 3, -1, 1, 43.5),
    Sketcher.Constraint("DistanceX", 2, 3, -1, 1, 36.5),
    Sketcher.Constraint("DistanceY", 4, 3, -1, 1, 17.5),
    Sketcher.Constraint("Radius", 5, 3.287695),
    Sketcher.Constraint("Distance", 18, 2.83354),
    Sketcher.Constraint("DistanceY", 0, 1, 0, 2, 16.253057),
    Sketcher.Constraint("DistanceX", 16, 3, -1, 1, 24.125631),
    Sketcher.Constraint("DistanceY", -1, 1, 16, 3, 12.374369),
    Sketcher.Constraint("DistanceY", -1, 1, 17, 3, 15.510759),
])
pocket3 = body.newObject("PartDesign::Pocket", "Pocket002")
pocket3.Profile = sketch5
pocket3.Type = "ThroughAll"
pocket3.Reversed = True

# Sketch on XY plane
sketch6 = body.newObject("Sketcher::SketchObject", "Sketch005")
sketch6.AttachmentSupport = (doc.getObject("XY_Plane"), [""])
sketch6.MapMode = "FlatFace"
sketch6.addGeometry([
    Part.LineSegment(Vector(55.5, -44, 0), Vector(62.5, -44, 0)),  # 0
    Part.LineSegment(Vector(62.5, -44, 0), Vector(62.5, -52, 0)),  # 1
    Part.ArcOfCircle(Part.Circle(Vector(59.5, -52, 0), Vector(0, 0, 1), 3), math.radians(-90), math.radians(0)),  # 2
    Part.LineSegment(Vector(59.5, -55, 0), Vector(51.742641, -55, 0)),  # 3
    Part.LineSegment(Vector(51.742641, -55, 0), Vector(51.742641, -25, 0)),  # 4
    Part.LineSegment(Vector(51.742641, -25, 0), Vector(57.363656, 2.38911, 0)),  # 5
    Part.LineSegment(Vector(57.363656, 2.38911, 0), Vector(62.5, -25, 0)),  # 6
    Part.LineSegment(Vector(62.5, -25, 0), Vector(62.5, -36, 0)),  # 7
    Part.LineSegment(Vector(62.5, -36, 0), Vector(55.5, -36, 0)),  # 8
    Part.LineSegment(Vector(55.5, -36, 0), Vector(55.5, -44, 0)),  # 9
    Part.Circle(Vector(59.5, -50, 0), Vector(0, 0, 1), 2.05),  # 10
    Part.Circle(Vector(59.5, -30, 0), Vector(0, 0, 1), 2.05),  # 11
], False)
sketch6.addConstraint([
    Sketcher.Constraint("Coincident", 0, 2, 1, 1),
    Sketcher.Constraint("Tangent", 1, 2, 2, 2),
    Sketcher.Constraint("Tangent", 2, 1, 3, 1),
    Sketcher.Constraint("Coincident", 3, 2, 4, 1),
    Sketcher.Constraint("Coincident", 4, 2, 5, 1),
    Sketcher.Constraint("Coincident", 5, 2, 6, 1),
    Sketcher.Constraint("Coincident", 6, 2, 7, 1),
    Sketcher.Constraint("Coincident", 7, 2, 8, 1),
    Sketcher.Constraint("Coincident", 8, 2, 9, 1),
    Sketcher.Constraint("Coincident", 9, 2, 0, 1),
    Sketcher.Constraint("Horizontal", 0),
    Sketcher.Constraint("Vertical", 1),
    Sketcher.Constraint("Horizontal", 3),
    Sketcher.Constraint("Vertical", 4),
    Sketcher.Constraint("Vertical", 7),
    Sketcher.Constraint("Horizontal", 8),
    Sketcher.Constraint("Vertical", 9),
    Sketcher.Constraint("Equal", 10, 11),
    Sketcher.Constraint("Horizontal", 4, 2, 6, 2),
    Sketcher.Constraint("Vertical", 2, 3, 10, 3),
    Sketcher.Constraint("Vertical", 10, 3, 11, 3),
    Sketcher.Constraint("Vertical", 1, 2, 6, 2),
    Sketcher.Constraint("Equal", 1, 9),
    Sketcher.Constraint("Radius", 2, 3.0),
    Sketcher.Constraint("Diameter", 10, 4.1),
    Sketcher.Constraint("DistanceX", 0, 1, 0, 2, 7.0),
    Sketcher.Constraint("DistanceY", 1, 2, 1, 1, 8.0),
    Sketcher.Constraint("DistanceY", 4, 1, 4, 2, 30.0),
    Sketcher.Constraint("DistanceY", 2, 3, -1, 1, 52.0),
    Sketcher.Constraint("DistanceY", 10, 3, -1, 1, 50.0),
    Sketcher.Constraint("DistanceY", 11, 3, -1, 1, 30.0),
    Sketcher.Constraint("DistanceX", -1, 1, 2, 3, 59.5),
    Sketcher.Constraint("DistanceX", 3, 2, 3, 1, 7.757359),
    Sketcher.Constraint("DistanceY", -1, 1, 5, 2, 2.38911),
    Sketcher.Constraint("Distance", 5, 27.959956),
])
pad3 = body.newObject("PartDesign::Pad", "Pad002")
pad3.Profile = sketch6
pad3.Length = 6

# Sketch on XY plane
sketch7 = body.newObject("Sketcher::SketchObject", "Sketch006")
sketch7.AttachmentSupport = (doc.getObject("XY_Plane"), [""])
sketch7.MapMode = "FlatFace"
sketch7.addGeometry([
    Part.Circle(Vector(59.55, -30, 0), Vector(0, 0, 1), 2.05),
    Part.Circle(Vector(59.55, -50, 0), Vector(0, 0, 1), 2.05),
    Part.Circle(Vector(55.5, -36, 0), Vector(0, 0, 1), 1),
    Part.Circle(Vector(55.5, -44, 0), Vector(0, 0, 1), 1),
], False)
sketch7.addConstraint([
    Sketcher.Constraint("Equal", 0, 1),
    Sketcher.Constraint("Equal", 2, 3),
    Sketcher.Constraint("Vertical", 0, 3, 1, 3),
    Sketcher.Constraint("Vertical", 2, 3, 3, 3),
    Sketcher.Constraint("Diameter", 2, 2.0),
    Sketcher.Constraint("Diameter", 0, 4.1),
    Sketcher.Constraint("DistanceY", 0, 3, -1, 1, 30.0),
    Sketcher.Constraint("DistanceY", 1, 3, -1, 1, 50.0),
    Sketcher.Constraint("DistanceY", 2, 3, -1, 1, 36.0),
    Sketcher.Constraint("DistanceY", 3, 3, -1, 1, 44.0),
    Sketcher.Constraint("DistanceX", -1, 1, 2, 3, 55.5),
    Sketcher.Constraint("DistanceX", -1, 1, 0, 3, 59.55),
])
pocket4 = body.newObject("PartDesign::Pocket", "Pocket003")
pocket4.Profile = sketch7
pocket4.Type = "ThroughAll"
pocket4.Reversed = True

doc.recompute()
